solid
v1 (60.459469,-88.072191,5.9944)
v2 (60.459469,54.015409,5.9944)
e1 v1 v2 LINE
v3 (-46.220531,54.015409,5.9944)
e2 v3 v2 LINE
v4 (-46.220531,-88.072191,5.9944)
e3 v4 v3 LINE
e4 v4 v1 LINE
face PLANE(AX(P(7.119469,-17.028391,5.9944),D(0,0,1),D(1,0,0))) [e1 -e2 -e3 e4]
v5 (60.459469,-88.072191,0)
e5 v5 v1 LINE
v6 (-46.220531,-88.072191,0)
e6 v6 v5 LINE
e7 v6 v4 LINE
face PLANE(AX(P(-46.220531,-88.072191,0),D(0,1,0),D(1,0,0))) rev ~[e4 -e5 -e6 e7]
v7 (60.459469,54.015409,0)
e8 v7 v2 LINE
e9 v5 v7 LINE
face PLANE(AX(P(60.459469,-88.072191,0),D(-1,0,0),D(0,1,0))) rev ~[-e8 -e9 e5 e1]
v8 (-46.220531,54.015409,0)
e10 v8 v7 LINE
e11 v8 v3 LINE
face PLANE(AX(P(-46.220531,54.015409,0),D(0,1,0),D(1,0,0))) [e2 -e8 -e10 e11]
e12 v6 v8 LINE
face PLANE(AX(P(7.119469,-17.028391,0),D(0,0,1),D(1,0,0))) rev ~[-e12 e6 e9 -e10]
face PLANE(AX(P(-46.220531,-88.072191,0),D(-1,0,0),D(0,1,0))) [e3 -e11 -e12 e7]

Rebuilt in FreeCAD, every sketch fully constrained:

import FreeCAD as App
import Part
import Sketcher

V = App.Vector
Q = App.Units.Quantity

doc = App.newDocument("Part")
body = doc.addObject("PartDesign::Body", "Body")

# Sketch on XY plane
sketch1 = body.newObject("Sketcher::SketchObject", "Sketch")
sketch1.AttachmentSupport = (doc.getObject("XY_Plane"), [""])
sketch1.MapMode = "FlatFace"
sketch1.addGeometry([
    Part.LineSegment(V(-46, 54, 0), V(-46, -88, 0)),
    Part.LineSegment(V(-46, -88, 0), V(60, -88, 0)),
    Part.LineSegment(V(60, -88, 0), V(60, 54, 0)),
    Part.LineSegment(V(60, 54, 0), V(-46, 54, 0)),
], False)
sketch1.addConstraint([
    Sketcher.Constraint("Coincident", 0, 2, 1, 1),
    Sketcher.Constraint("Coincident", 1, 2, 2, 1),
    Sketcher.Constraint("Coincident", 2, 2, 3, 1),
    Sketcher.Constraint("Coincident", 3, 2, 0, 1),
    Sketcher.Constraint("Vertical", 0),
    Sketcher.Constraint("Horizontal", 1),
    Sketcher.Constraint("Vertical", 2),
    Sketcher.Constraint("Horizontal", 3),
    Sketcher.Constraint("DistanceX", 1, 1, 1, 2, Q("4.2 in")),
    Sketcher.Constraint("DistanceY", 0, 2, 0, 1, Q("5.594 in")),
    Sketcher.Constraint("DistanceX", 0, 2, -1, 1, 46.220531),
    Sketcher.Constraint("DistanceY", 0, 2, -1, 1, 88.072191),
])
pad1 = body.newObject("PartDesign::Pad", "Pad")
pad1.Profile = sketch1
pad1.Length = Q("0.236 in")

doc.recompute()
